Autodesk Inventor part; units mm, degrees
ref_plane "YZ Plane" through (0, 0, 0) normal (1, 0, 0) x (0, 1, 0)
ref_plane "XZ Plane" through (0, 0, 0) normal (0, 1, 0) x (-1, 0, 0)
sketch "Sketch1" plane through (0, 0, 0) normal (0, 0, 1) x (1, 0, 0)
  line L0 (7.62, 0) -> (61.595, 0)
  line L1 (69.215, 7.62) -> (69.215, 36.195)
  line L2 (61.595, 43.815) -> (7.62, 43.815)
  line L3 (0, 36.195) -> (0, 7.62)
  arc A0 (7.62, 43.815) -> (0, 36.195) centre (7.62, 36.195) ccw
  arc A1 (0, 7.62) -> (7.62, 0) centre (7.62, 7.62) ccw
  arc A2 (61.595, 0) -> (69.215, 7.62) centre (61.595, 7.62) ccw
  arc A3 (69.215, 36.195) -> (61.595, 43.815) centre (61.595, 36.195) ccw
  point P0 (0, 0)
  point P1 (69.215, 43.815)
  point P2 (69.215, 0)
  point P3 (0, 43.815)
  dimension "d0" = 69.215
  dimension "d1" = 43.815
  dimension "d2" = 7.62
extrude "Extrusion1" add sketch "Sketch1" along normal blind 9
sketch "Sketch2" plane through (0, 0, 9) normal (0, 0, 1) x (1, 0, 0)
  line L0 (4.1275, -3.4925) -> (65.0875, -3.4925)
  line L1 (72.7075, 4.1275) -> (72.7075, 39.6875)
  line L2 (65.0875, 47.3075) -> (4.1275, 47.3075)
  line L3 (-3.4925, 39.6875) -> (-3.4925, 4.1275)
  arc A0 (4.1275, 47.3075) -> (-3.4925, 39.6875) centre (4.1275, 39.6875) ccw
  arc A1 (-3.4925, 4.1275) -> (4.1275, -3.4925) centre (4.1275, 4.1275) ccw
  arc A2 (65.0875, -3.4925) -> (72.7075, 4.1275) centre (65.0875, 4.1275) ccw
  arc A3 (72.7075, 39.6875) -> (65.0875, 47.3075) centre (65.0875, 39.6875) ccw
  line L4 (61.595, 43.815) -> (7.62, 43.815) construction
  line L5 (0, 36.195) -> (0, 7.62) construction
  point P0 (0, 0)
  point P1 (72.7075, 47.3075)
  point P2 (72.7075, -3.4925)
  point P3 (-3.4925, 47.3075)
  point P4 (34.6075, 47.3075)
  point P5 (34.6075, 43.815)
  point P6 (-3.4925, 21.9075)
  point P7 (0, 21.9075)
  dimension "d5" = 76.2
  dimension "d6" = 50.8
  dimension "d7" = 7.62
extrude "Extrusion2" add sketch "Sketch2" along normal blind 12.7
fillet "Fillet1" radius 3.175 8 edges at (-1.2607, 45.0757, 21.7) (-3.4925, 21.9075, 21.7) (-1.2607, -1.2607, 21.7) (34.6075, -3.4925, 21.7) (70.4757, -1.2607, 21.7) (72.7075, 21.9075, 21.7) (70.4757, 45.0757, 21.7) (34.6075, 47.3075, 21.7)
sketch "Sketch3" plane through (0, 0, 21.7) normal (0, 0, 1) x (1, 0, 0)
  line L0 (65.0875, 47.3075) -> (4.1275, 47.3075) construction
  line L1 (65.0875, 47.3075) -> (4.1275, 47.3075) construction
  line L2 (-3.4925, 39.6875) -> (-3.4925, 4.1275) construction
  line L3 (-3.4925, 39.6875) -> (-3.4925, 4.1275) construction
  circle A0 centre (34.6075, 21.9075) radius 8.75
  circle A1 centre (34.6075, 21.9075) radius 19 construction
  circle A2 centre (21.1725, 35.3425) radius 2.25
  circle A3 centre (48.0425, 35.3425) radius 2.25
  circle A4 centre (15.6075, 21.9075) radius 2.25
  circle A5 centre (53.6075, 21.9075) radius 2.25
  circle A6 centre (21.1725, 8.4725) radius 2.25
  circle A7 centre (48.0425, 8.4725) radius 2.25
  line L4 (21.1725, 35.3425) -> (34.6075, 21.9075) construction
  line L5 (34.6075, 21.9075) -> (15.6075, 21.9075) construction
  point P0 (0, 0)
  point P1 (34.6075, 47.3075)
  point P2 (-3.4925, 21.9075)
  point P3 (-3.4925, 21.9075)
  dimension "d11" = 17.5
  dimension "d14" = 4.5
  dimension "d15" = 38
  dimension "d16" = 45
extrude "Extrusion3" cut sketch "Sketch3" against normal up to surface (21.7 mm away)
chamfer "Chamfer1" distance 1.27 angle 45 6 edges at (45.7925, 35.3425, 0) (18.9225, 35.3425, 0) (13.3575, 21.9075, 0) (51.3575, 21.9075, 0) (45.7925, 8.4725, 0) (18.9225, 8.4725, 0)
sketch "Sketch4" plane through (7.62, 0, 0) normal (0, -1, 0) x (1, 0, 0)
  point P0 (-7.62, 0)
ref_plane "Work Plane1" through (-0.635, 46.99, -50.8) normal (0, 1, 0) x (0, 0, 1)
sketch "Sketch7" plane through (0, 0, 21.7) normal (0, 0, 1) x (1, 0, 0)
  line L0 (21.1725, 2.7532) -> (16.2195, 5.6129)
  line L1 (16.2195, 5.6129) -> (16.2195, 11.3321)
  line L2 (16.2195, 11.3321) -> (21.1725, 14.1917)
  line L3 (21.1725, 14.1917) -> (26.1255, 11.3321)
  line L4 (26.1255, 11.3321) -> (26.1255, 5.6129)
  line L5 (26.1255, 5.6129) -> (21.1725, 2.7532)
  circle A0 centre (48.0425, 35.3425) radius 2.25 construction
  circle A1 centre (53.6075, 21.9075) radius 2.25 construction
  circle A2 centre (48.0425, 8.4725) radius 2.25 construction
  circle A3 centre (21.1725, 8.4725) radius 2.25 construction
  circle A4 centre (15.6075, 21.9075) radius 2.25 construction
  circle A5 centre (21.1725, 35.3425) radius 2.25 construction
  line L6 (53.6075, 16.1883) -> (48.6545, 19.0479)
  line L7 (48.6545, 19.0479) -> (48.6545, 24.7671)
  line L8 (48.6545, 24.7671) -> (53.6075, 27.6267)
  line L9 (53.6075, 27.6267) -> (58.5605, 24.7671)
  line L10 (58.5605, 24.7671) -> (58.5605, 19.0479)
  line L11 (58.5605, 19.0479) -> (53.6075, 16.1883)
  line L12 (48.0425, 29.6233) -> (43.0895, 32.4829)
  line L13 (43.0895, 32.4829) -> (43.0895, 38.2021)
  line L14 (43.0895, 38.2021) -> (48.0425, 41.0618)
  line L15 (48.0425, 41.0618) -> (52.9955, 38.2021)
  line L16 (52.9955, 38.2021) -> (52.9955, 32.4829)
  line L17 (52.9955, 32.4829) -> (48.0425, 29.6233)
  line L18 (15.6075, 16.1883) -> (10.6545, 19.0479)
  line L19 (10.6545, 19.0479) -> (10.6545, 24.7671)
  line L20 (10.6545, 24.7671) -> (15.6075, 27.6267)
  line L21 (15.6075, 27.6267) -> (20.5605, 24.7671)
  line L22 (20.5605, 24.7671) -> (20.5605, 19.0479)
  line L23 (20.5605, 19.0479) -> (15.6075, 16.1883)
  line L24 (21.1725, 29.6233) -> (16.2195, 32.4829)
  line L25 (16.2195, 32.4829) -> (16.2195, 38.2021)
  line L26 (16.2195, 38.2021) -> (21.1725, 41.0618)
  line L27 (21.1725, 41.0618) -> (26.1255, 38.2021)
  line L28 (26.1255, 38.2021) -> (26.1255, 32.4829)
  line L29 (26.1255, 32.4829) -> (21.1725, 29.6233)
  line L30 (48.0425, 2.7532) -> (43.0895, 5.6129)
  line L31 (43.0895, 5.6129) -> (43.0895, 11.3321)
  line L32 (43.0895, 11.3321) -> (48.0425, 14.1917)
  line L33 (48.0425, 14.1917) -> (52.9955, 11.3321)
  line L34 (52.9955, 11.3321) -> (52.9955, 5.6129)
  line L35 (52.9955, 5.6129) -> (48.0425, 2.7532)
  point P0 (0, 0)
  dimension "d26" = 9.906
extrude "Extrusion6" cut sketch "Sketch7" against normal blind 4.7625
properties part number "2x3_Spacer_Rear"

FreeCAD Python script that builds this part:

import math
import FreeCAD as App
import Part
import Sketcher
from FreeCAD import Vector
Q = App.Units.Quantity


def edges_at(feature, points):
    """Names of the edges that pass closest to the given points."""
    edges = feature.Shape.Edges
    near = lambda p: min(range(len(edges)), key=lambda i: edges[i].distToShape(Part.Vertex(*p))[0])
    return sorted({f"Edge{near(p) + 1}" for p in points})


def add_polygon(sketch, points):
    """Adds a closed chain of lines whose ends are joined by coincident constraints."""
    first, n = sketch.GeometryCount, len(points)
    for a, b in zip(points, points[1:] + points[:1]):
        sketch.addGeometry(Part.LineSegment(App.Vector(*a, 0), App.Vector(*b, 0)), False)
    for i in range(n):
        sketch.addConstraint(Sketcher.Constraint("Coincident", first + i, 2, first + (i + 1) % n, 1))

doc = App.newDocument("Part")
body = doc.addObject("PartDesign::Body", "Body")

# Sketch on XY plane
sketch1 = body.newObject("Sketcher::SketchObject", "Sketch")
sketch1.AttachmentSupport = (doc.getObject("XY_Plane"), [""])
sketch1.MapMode = "FlatFace"
sketch1.addGeometry(Part.ArcOfCircle(Part.Circle(Vector(8, 8, 0), Vector(0, 0, 1), 8), math.radians(180), math.radians(270)), False)
sketch1.addGeometry(Part.LineSegment(Vector(8, 0, 0), Vector(62, 0, 0)), False)
sketch1.addGeometry(Part.ArcOfCircle(Part.Circle(Vector(62, 8, 0), Vector(0, 0, 1), 8), math.radians(-90), math.radians(0)), False)
sketch1.addGeometry(Part.LineSegment(Vector(69, 8, 0), Vector(69, 36, 0)), False)
sketch1.addGeometry(Part.ArcOfCircle(Part.Circle(Vector(62, 36, 0), Vector(0, 0, 1), 8), math.radians(0), math.radians(90)), False)
sketch1.addGeometry(Part.LineSegment(Vector(62, 44, 0), Vector(8, 44, 0)), False)
sketch1.addGeometry(Part.ArcOfCircle(Part.Circle(Vector(8, 36, 0), Vector(0, 0, 1), 8), math.radians(90), math.radians(180)), False)
sketch1.addGeometry(Part.LineSegment(Vector(0, 36, 0), Vector(0, 8, 0)), False)
sketch1.addConstraint(Sketcher.Constraint("Tangent", 0, 2, 1, 1))
sketch1.addConstraint(Sketcher.Constraint("Tangent", 1, 2, 2, 1))
sketch1.addConstraint(Sketcher.Constraint("Tangent", 2, 2, 3, 1))
sketch1.addConstraint(Sketcher.Constraint("Tangent", 3, 2, 4, 1))
sketch1.addConstraint(Sketcher.Constraint("Tangent", 4, 2, 5, 1))
sketch1.addConstraint(Sketcher.Constraint("Tangent", 5, 2, 6, 1))
sketch1.addConstraint(Sketcher.Constraint("Tangent", 6, 2, 7, 1))
sketch1.addConstraint(Sketcher.Constraint("Tangent", 7, 2, 0, 1))
sketch1.addConstraint(Sketcher.Constraint("Horizontal", 1))
sketch1.addConstraint(Sketcher.Constraint("Vertical", 3))
sketch1.addConstraint(Sketcher.Constraint("Horizontal", 5))
sketch1.addConstraint(Sketcher.Constraint("Vertical", 7))
sketch1.addConstraint(Sketcher.Constraint("Equal", 0, 2))
sketch1.addConstraint(Sketcher.Constraint("Equal", 2, 4))
sketch1.addConstraint(Sketcher.Constraint("Equal", 4, 6))
sketch1.addConstraint(Sketcher.Constraint("PointOnObject", 0, 2, -1))
sketch1.addConstraint(Sketcher.Constraint("PointOnObject", 6, 2, -2))
sketch1.addConstraint(Sketcher.Constraint("Radius", 0, Q("0.3 in")))
sketch1.addConstraint(Sketcher.Constraint("DistanceX", -1, 1, 2, 2, Q("2.725 in")))
sketch1.addConstraint(Sketcher.Constraint("DistanceY", -1, 1, 4, 2, Q("1.725 in")))
pad1 = body.newObject("PartDesign::Pad", "Pad")
pad1.Profile = sketch1
pad1.Length = 9

# Sketch on XY plane
sketch2 = body.newObject("Sketcher::SketchObject", "Sketch001")
sketch2.AttachmentSupport = (doc.getObject("XY_Plane"), [""])
sketch2.MapMode = "FlatFace"
sketch2.AttachmentOffset = App.Placement(Vector(0, 0, 9), App.Rotation())
sketch2.addGeometry(Part.ArcOfCircle(Part.Circle(Vector(4, 4, 0), Vector(0, 0, 1), 8), math.radians(180), math.radians(270)), False)
sketch2.addGeometry(Part.LineSegment(Vector(4, -3, 0), Vector(65, -3, 0)), False)
sketch2.addGeometry(Part.ArcOfCircle(Part.Circle(Vector(65, 4, 0), Vector(0, 0, 1), 8), math.radians(-90), math.radians(0)), False)
sketch2.addGeometry(Part.LineSegment(Vector(73, 4, 0), Vector(73, 40, 0)), False)
sketch2.addGeometry(Part.ArcOfCircle(Part.Circle(Vector(65, 40, 0), Vector(0, 0, 1), 8), math.radians(0), math.radians(90)), False)
sketch2.addGeometry(Part.LineSegment(Vector(65, 47, 0), Vector(4, 47, 0)), False)
sketch2.addGeometry(Part.ArcOfCircle(Part.Circle(Vector(4, 40, 0), Vector(0, 0, 1), 8), math.radians(90), math.radians(180)), False)
sketch2.addGeometry(Part.LineSegment(Vector(-3, 40, 0), Vector(-3, 4, 0)), False)
sketch2.addConstraint(Sketcher.Constraint("Tangent", 0, 2, 1, 1))
sketch2.addConstraint(Sketcher.Constraint("Tangent", 1, 2, 2, 1))
sketch2.addConstraint(Sketcher.Constraint("Tangent", 2, 2, 3, 1))
sketch2.addConstraint(Sketcher.Constraint("Tangent", 3, 2, 4, 1))
sketch2.addConstraint(Sketcher.Constraint("Tangent", 4, 2, 5, 1))
sketch2.addConstraint(Sketcher.Constraint("Tangent", 5, 2, 6, 1))
sketch2.addConstraint(Sketcher.Constraint("Tangent", 6, 2, 7, 1))
sketch2.addConstraint(Sketcher.Constraint("Tangent", 7, 2, 0, 1))
sketch2.addConstraint(Sketcher.Constraint("Horizontal", 1))
sketch2.addConstraint(Sketcher.Constraint("Vertical", 3))
sketch2.addConstraint(Sketcher.Constraint("Horizontal", 5))
sketch2.addConstraint(Sketcher.Constraint("Vertical", 7))
sketch2.addConstraint(Sketcher.Constraint("Equal", 0, 2))
sketch2.addConstraint(Sketcher.Constraint("Equal", 2, 4))
sketch2.addConstraint(Sketcher.Constraint("Equal", 4, 6))
sketch2.addConstraint(Sketcher.Constraint("Radius", 0, Q("0.3 in")))
sketch2.addConstraint(Sketcher.Constraint("DistanceY", 1, 2, 4, 2, Q("2 in")))
sketch2.addConstraint(Sketcher.Constraint("DistanceX", 1, 1, 1, 2, Q("2.4 in")))
sketch2.addConstraint(Sketcher.Constraint("DistanceX", -1, 1, 2, 3, Q("2.5625 in")))
sketch2.addConstraint(Sketcher.Constraint("DistanceY", -1, 1, 4, 3, Q("1.5625 in")))
pad2 = body.newObject("PartDesign::Pad", "Pad001")
pad2.Profile = sketch2
pad2.Length = Q("0.5 in")
doc.recompute()

fillet = body.newObject("PartDesign::Fillet", "Fillet")
fillet.Base = (pad2, edges_at(pad2, [
    (-1.261, 45.076, 21.7),
    (-3.493, 21.907, 21.7),
    (-1.261, -1.261, 21.7),
    (34.608, -3.493, 21.7),
    (70.476, -1.261, 21.7),
    (72.707, 21.907, 21.7),
    (70.476, 45.076, 21.7),
    (34.608, 47.307, 21.7),
]))
fillet.Radius = Q("0.125 in")

# Sketch on XY plane
sketch3 = body.newObject("Sketcher::SketchObject", "Sketch002")
sketch3.AttachmentSupport = (doc.getObject("XY_Plane"), [""])
sketch3.MapMode = "FlatFace"
sketch3.AttachmentOffset = App.Placement(Vector(0, 0, 21.7), App.Rotation())
sketch3.addGeometry(Part.Circle(Vector(34.6, 21.9, 0), Vector(0, 0, 1), 8.8), False)
sketch3.addGeometry(Part.Circle(Vector(21.2, 35.3, 0), Vector(0, 0, 1), 2.2), False)
sketch3.addGeometry(Part.Circle(Vector(48, 35.3, 0), Vector(0, 0, 1), 2.2), False)
sketch3.addGeometry(Part.Circle(Vector(15.6, 21.9, 0), Vector(0, 0, 1), 2.2), False)
sketch3.addGeometry(Part.Circle(Vector(53.6, 21.9, 0), Vector(0, 0, 1), 2.2), False)
sketch3.addGeometry(Part.Circle(Vector(21.2, 8.5, 0), Vector(0, 0, 1), 2.2), False)
sketch3.addGeometry(Part.Circle(Vector(48, 8.5, 0), Vector(0, 0, 1), 2.2), False)
sketch3.addConstraint(Sketcher.Constraint("Equal", 1, 2))
sketch3.addConstraint(Sketcher.Constraint("Equal", 2, 3))
sketch3.addConstraint(Sketcher.Constraint("Equal", 3, 4))
sketch3.addConstraint(Sketcher.Constraint("Equal", 4, 5))
sketch3.addConstraint(Sketcher.Constraint("Equal", 5, 6))
sketch3.addConstraint(Sketcher.Constraint("Horizontal", 1, 3, 2, 3))
sketch3.addConstraint(Sketcher.Constraint("Horizontal", 0, 3, 3, 3))
sketch3.addConstraint(Sketcher.Constraint("Horizontal", 3, 3, 4, 3))
sketch3.addConstraint(Sketcher.Constraint("Horizontal", 5, 3, 6, 3))
sketch3.addConstraint(Sketcher.Constraint("Vertical", 1, 3, 5, 3))
sketch3.addConstraint(Sketcher.Constraint("Vertical", 2, 3, 6, 3))
sketch3.addConstraint(Sketcher.Constraint("Diameter", 0, Q("17.5 mm")))
sketch3.addConstraint(Sketcher.Constraint("Diameter", 1, Q("4.5 mm")))
sketch3.addConstraint(Sketcher.Constraint("DistanceX", 3, 3, 4, 3, Q("38 mm")))
sketch3.addConstraint(Sketcher.Constraint("DistanceX", -1, 1, 0, 3, Q("1.3625 in")))
sketch3.addConstraint(Sketcher.Constraint("DistanceY", -1, 1, 0, 3, Q("0.8625 in")))
sketch3.addConstraint(Sketcher.Constraint("DistanceX", 3, 3, 1, 3, Q("0.2191 in")))
sketch3.addConstraint(Sketcher.Constraint("DistanceX", 2, 3, 4, 3, Q("0.2191 in")))
sketch3.addConstraint(Sketcher.Constraint("DistanceX", -1, 1, 1, 3, Q("21.1725 mm")))
sketch3.addConstraint(Sketcher.Constraint("DistanceY", -1, 1, 1, 3, Q("35.3425 mm")))
sketch3.addConstraint(Sketcher.Constraint("DistanceY", -1, 1, 5, 3, Q("8.4725 mm")))
pocket1 = body.newObject("PartDesign::Pocket", "Pocket")
pocket1.Profile = sketch3
pocket1.Length = 21.7
doc.recompute()

chamfer = body.newObject("PartDesign::Chamfer", "Chamfer")
chamfer.Base = (pocket1, edges_at(pocket1, [
    (45.792, 35.343, 0),
    (18.922, 35.343, 0),
    (13.357, 21.907, 0),
    (51.358, 21.907, 0),
    (45.792, 8.473, 0),
    (18.922, 8.473, 0),
]))
chamfer.Size = Q("0.05 in")

# Sketch on XY plane
sketch4 = body.newObject("Sketcher::SketchObject", "Sketch003")
sketch4.AttachmentSupport = (doc.getObject("XY_Plane"), [""])
sketch4.MapMode = "FlatFace"
sketch4.AttachmentOffset = App.Placement(Vector(0, 0, 21.7), App.Rotation())
add_polygon(sketch4, [(16, 6), (21, 3), (26, 6), (26, 11), (21, 14), (16, 11)])  # lines 0-5
add_polygon(sketch4, [(49, 19), (54, 16), (59, 19), (59, 25), (54, 28), (49, 25)])  # lines 6-11
add_polygon(sketch4, [(43, 32), (48, 30), (53, 32), (53, 38), (48, 41), (43, 38)])  # lines 12-17
add_polygon(sketch4, [(11, 19), (16, 16), (21, 19), (21, 25), (16, 28), (11, 25)])  # lines 18-23
add_polygon(sketch4, [(16, 32), (21, 30), (26, 32), (26, 38), (21, 41), (16, 38)])  # lines 24-29
add_polygon(sketch4, [(43, 6), (48, 3), (53, 6), (53, 11), (48, 14), (43, 11)])  # lines 30-35
sketch4.addConstraint(Sketcher.Constraint("Vertical", 2))
sketch4.addConstraint(Sketcher.Constraint("Vertical", 5))
sketch4.addConstraint(Sketcher.Constraint("Vertical", 8))
sketch4.addConstraint(Sketcher.Constraint("Vertical", 11))
sketch4.addConstraint(Sketcher.Constraint("Vertical", 14))
sketch4.addConstraint(Sketcher.Constraint("Vertical", 17))
sketch4.addConstraint(Sketcher.Constraint("Vertical", 20))
sketch4.addConstraint(Sketcher.Constraint("Vertical", 23))
sketch4.addConstraint(Sketcher.Constraint("Vertical", 26))
sketch4.addConstraint(Sketcher.Constraint("Vertical", 29))
sketch4.addConstraint(Sketcher.Constraint("Vertical", 32))
sketch4.addConstraint(Sketcher.Constraint("Vertical", 35))
sketch4.addConstraint(Sketcher.Constraint("Parallel", 0, 3))
sketch4.addConstraint(Sketcher.Constraint("Parallel", 1, 4))
sketch4.addConstraint(Sketcher.Constraint("Parallel", 3, 6))
sketch4.addConstraint(Sketcher.Constraint("Parallel", 4, 7))
sketch4.addConstraint(Sketcher.Constraint("Parallel", 6, 9))
sketch4.addConstraint(Sketcher.Constraint("Parallel", 7, 10))
sketch4.addConstraint(Sketcher.Constraint("Parallel", 9, 12))
sketch4.addConstraint(Sketcher.Constraint("Parallel", 10, 13))
sketch4.addConstraint(Sketcher.Constraint("Parallel", 12, 15))
sketch4.addConstraint(Sketcher.Constraint("Parallel", 13, 16))
sketch4.addConstraint(Sketcher.Constraint("Parallel", 15, 18))
sketch4.addConstraint(Sketcher.Constraint("Parallel", 16, 19))
sketch4.addConstraint(Sketcher.Constraint("Parallel", 18, 21))
sketch4.addConstraint(Sketcher.Constraint("Parallel", 19, 22))
sketch4.addConstraint(Sketcher.Constraint("Parallel", 21, 24))
sketch4.addConstraint(Sketcher.Constraint("Parallel", 22, 25))
sketch4.addConstraint(Sketcher.Constraint("Parallel", 24, 27))
sketch4.addConstraint(Sketcher.Constraint("Parallel", 25, 28))
sketch4.addConstraint(Sketcher.Constraint("Parallel", 27, 30))
sketch4.addConstraint(Sketcher.Constraint("Parallel", 28, 31))
sketch4.addConstraint(Sketcher.Constraint("Parallel", 30, 33))
sketch4.addConstraint(Sketcher.Constraint("Parallel", 31, 34))
sketch4.addConstraint(Sketcher.Constraint("Horizontal", 2, 2, 4, 2))
sketch4.addConstraint(Sketcher.Constraint("Horizontal", 1, 2, 5, 2))
sketch4.addConstraint(Sketcher.Constraint("Horizontal", 8, 2, 10, 2))
sketch4.addConstraint(Sketcher.Constraint("Horizontal", 7, 2, 11, 2))
sketch4.addConstraint(Sketcher.Constraint("Horizontal", 14, 2, 16, 2))
sketch4.addConstraint(Sketcher.Constraint("Horizontal", 13, 2, 17, 2))
sketch4.addConstraint(Sketcher.Constraint("Horizontal", 6, 2, 18, 2))
sketch4.addConstraint(Sketcher.Constraint("Horizontal", 11, 2, 19, 2))
sketch4.addConstraint(Sketcher.Constraint("Horizontal", 10, 2, 20, 2))
sketch4.addConstraint(Sketcher.Constraint("Horizontal", 9, 2, 21, 2))
sketch4.addConstraint(Sketcher.Constraint("Horizontal", 20, 2, 22, 2))
sketch4.addConstraint(Sketcher.Constraint("Horizontal", 12, 2, 24, 2))
sketch4.addConstraint(Sketcher.Constraint("Horizontal", 17, 2, 25, 2))
sketch4.addConstraint(Sketcher.Constraint("Horizontal", 16, 2, 26, 2))
sketch4.addConstraint(Sketcher.Constraint("Horizontal", 15, 2, 27, 2))
sketch4.addConstraint(Sketcher.Constraint("Horizontal", 26, 2, 28, 2))
sketch4.addConstraint(Sketcher.Constraint("Horizontal", 0, 2, 30, 2))
sketch4.addConstraint(Sketcher.Constraint("Horizontal", 5, 2, 31, 2))
sketch4.addConstraint(Sketcher.Constraint("Horizontal", 4, 2, 32, 2))
sketch4.addConstraint(Sketcher.Constraint("Horizontal", 3, 2, 33, 2))
sketch4.addConstraint(Sketcher.Constraint("Horizontal", 32, 2, 34, 2))
sketch4.addConstraint(Sketcher.Constraint("Vertical", 0, 2, 3, 2))
sketch4.addConstraint(Sketcher.Constraint("Vertical", 3, 2, 24, 2))
sketch4.addConstraint(Sketcher.Constraint("Vertical", 2, 2, 25, 2))
sketch4.addConstraint(Sketcher.Constraint("Vertical", 15, 2, 30, 2))
sketch4.addConstraint(Sketcher.Constraint("Equal", 5, 8))
sketch4.addConstraint(Sketcher.Constraint("Equal", 11, 14))
sketch4.addConstraint(Sketcher.Constraint("Equal", 4, 6))
sketch4.addConstraint(Sketcher.Constraint("DistanceX", 4, 2, 2, 2, Q("0.39 in")))
sketch4.addConstraint(Sketcher.Constraint("Angle", 0, Q("-30.0007 deg")))
sketch4.addConstraint(Sketcher.Constraint("DistanceY", 2, 1, 2, 2, Q("5.7192 mm")))
sketch4.addConstraint(Sketcher.Constraint("DistanceY", -1, 1, 0, 2, Q("0.1084 in")))
sketch4.addConstraint(Sketcher.Constraint("DistanceY", -1, 1, 15, 2, Q("1.6166 in")))
sketch4.addConstraint(Sketcher.Constraint("DistanceY", 2, 2, 6, 2, Q("0.1912 in")))
sketch4.addConstraint(Sketcher.Constraint("DistanceX", 12, 2, 10, 2, Q("0.0241 in")))
sketch4.addConstraint(Sketcher.Constraint("DistanceX", 18, 2, 4, 2, Q("0.0241 in")))
sketch4.addConstraint(Sketcher.Constraint("DistanceX", -1, 1, 0, 2, Q("21.1725 mm")))
sketch4.addConstraint(Sketcher.Constraint("DistanceX", -1, 1, 6, 2, Q("53.6075 mm")))
pocket2 = body.newObject("PartDesign::Pocket", "Pocket001")
pocket2.Profile = sketch4
pocket2.Length = Q("0.1875 in")

doc.recompute()
